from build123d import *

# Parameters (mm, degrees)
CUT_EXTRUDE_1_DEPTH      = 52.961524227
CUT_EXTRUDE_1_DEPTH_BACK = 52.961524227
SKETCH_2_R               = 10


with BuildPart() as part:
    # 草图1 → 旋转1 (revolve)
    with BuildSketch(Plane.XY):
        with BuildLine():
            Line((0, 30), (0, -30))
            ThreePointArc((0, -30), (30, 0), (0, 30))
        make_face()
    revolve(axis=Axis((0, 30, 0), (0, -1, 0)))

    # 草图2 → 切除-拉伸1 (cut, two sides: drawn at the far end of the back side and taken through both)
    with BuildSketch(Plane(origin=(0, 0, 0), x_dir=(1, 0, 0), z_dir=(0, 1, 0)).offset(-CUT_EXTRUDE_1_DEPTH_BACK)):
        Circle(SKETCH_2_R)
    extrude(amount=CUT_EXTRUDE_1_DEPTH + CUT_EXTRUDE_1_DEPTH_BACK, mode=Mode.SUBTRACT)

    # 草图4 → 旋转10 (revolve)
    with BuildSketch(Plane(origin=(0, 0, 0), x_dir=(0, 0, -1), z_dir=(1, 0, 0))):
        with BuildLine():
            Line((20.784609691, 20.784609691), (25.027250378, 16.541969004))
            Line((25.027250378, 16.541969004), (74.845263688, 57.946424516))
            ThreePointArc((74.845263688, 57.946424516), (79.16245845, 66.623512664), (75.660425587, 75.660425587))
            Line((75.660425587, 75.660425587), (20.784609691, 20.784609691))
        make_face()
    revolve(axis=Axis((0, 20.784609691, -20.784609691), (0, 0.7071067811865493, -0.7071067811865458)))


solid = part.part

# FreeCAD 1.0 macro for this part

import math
import FreeCAD as App
import Part
import Sketcher
from FreeCAD import Vector
Q = App.Units.Quantity

doc = App.newDocument("Part")
body = doc.addObject("PartDesign::Body", "Body")

sketch1 = doc.addObject("Sketcher::SketchObject", "Sketch")
body.addObject(sketch1)
sketch1.AttachmentSupport = (doc.XY_Plane, [""])
sketch1.MapMode = "FlatFace"
sketch1.addGeometry(Part.LineSegment(Vector(0, 30, 0), Vector(0, -30, 0)), False)
sketch1.addGeometry(Part.ArcOfCircle(Part.Circle(Vector(0, 0, 0), Vector(0, 0, 1), 30), math.radians(-90), math.radians(90)), False)
sketch1.addConstraint(Sketcher.Constraint("Coincident", 0, 1, 1, 2))
sketch1.addConstraint(Sketcher.Constraint("Coincident", 1, 1, 0, 2))
sketch1.addConstraint(Sketcher.Constraint("Vertical", 0))
sketch1.addConstraint(Sketcher.Constraint("Coincident", 1, 3, -1, 1))
sketch1.addConstraint(Sketcher.Constraint("PointOnObject", 0, 1, -2))
sketch1.addConstraint(Sketcher.Constraint("Radius", 1, 30.0))
revolution = doc.addObject("PartDesign::Revolution", "Revolution")
body.addObject(revolution)
revolution.Profile = sketch1
revolution.ReferenceAxis = (sketch1, ["V_Axis"])
revolution.Angle = 360

sketch2 = doc.addObject("Sketcher::SketchObject", "Sketch001")
body.addObject(sketch2)
sketch2.AttachmentSupport = (doc.XZ_Plane, [""])
sketch2.MapMode = "FlatFace"
sketch2.addGeometry(Part.Circle(Vector(0, 0, 0), Vector(0, 0, 1), 10), False)
sketch2.addConstraint(Sketcher.Constraint("Coincident", 0, 3, -1, 1))
sketch2.addConstraint(Sketcher.Constraint("Diameter", 0, 20.0))
pocket1 = doc.addObject("PartDesign::Pocket", "Pocket")
body.addObject(pocket1)
pocket1.Profile = sketch2
pocket1.Type = "ThroughAll"
pocket1.Midplane = True

sketch3 = doc.addObject("Sketcher::SketchObject", "Sketch002")
body.addObject(sketch3)
sketch3.AttachmentSupport = (doc.YZ_Plane, [""])
sketch3.MapMode = "FlatFace"
sketch3.addGeometry(Part.LineSegment(Vector(21, -21, 0), Vector(17, -25, 0)), False)
sketch3.addGeometry(Part.LineSegment(Vector(17, -25, 0), Vector(58, -75, 0)), False)
sketch3.addGeometry(Part.ArcOfCircle(Part.Circle(Vector(67, -67, 0), Vector(0, 0, 1), 12), math.radians(-140), math.radians(-45)), False)
sketch3.addGeometry(Part.LineSegment(Vector(76, -76, 0), Vector(21, -21, 0)), False)
sketch3.addGeometry(Part.LineSegment(Vector(21, -21, 0), Vector(76, -76, 0)), True)
sketch3.addConstraint(Sketcher.Constraint("Coincident", 0, 2, 1, 1))
sketch3.addConstraint(Sketcher.Constraint("Tangent", 1, 2, 2, 1))
sketch3.addConstraint(Sketcher.Constraint("Coincident", 2, 2, 3, 1))
sketch3.addConstraint(Sketcher.Constraint("Coincident", 3, 2, 0, 1))
sketch3.addConstraint(Sketcher.Constraint("Coincident", 4, 1, 3, 2))
sketch3.addConstraint(Sketcher.Constraint("Coincident", 4, 2, 2, 2))
sketch3.addConstraint(Sketcher.Constraint("Perpendicular", 0, 3))
sketch3.addConstraint(Sketcher.Constraint("Radius", 2, 12.0))
sketch3.addConstraint(Sketcher.Constraint("Angle", 0, Q("-135 deg")))
sketch3.addConstraint(Sketcher.Constraint("Distance", 0, 6.0))
sketch3.addConstraint(Sketcher.Constraint("DistanceX", 1, 2, 2, 2, 17.714001))
sketch3.addConstraint(Sketcher.Constraint("Distance", 1, 64.7778))
sketch3.addConstraint(Sketcher.Constraint("DistanceX", -1, 1, 0, 2, 16.541969))
sketch3.addConstraint(Sketcher.Constraint("DistanceY", 0, 2, -1, 1, 25.02725))
revolution2 = doc.addObject("PartDesign::Revolution", "Revolution001")
body.addObject(revolution2)
revolution2.Profile = sketch3
revolution2.ReferenceAxis = (sketch3, ["Axis0"])
revolution2.Angle = 360

doc.recompute()
